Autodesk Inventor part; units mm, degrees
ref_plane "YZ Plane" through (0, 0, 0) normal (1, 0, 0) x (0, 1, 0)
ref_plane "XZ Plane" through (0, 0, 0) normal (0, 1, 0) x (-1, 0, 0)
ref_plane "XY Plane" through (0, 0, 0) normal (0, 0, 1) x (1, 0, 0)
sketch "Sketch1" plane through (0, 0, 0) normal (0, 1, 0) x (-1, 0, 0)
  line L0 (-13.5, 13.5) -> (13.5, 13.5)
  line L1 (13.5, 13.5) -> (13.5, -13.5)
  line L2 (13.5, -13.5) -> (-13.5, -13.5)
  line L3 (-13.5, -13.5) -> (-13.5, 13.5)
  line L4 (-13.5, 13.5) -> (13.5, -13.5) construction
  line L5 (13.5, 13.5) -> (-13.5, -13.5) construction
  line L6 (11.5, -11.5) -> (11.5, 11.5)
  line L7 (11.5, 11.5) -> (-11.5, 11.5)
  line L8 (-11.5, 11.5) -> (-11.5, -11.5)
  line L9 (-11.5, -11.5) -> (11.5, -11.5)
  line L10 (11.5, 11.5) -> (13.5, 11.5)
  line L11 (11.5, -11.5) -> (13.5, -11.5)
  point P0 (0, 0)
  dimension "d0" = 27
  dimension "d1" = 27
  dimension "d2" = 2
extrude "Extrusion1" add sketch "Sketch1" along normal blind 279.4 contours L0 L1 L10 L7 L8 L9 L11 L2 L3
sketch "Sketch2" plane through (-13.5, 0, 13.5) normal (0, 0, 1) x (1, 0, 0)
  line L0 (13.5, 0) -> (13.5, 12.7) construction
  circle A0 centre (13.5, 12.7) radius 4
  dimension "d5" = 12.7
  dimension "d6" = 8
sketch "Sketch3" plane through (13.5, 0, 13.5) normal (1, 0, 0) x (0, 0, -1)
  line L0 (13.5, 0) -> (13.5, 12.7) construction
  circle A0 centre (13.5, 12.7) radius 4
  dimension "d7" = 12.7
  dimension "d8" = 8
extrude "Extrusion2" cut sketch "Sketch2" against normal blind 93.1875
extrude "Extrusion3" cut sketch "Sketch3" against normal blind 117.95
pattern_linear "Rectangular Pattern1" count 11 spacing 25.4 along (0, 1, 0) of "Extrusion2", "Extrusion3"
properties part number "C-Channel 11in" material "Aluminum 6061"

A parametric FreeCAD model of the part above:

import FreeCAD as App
import Part
import Sketcher
from FreeCAD import Vector
Q = App.Units.Quantity


def add_polygon(sketch, points):
    """Adds a closed chain of lines whose ends are joined by coincident constraints."""
    first, n = sketch.GeometryCount, len(points)
    for a, b in zip(points, points[1:] + points[:1]):
        sketch.addGeometry(Part.LineSegment(App.Vector(*a, 0), App.Vector(*b, 0)), False)
    for i in range(n):
        sketch.addConstraint(Sketcher.Constraint("Coincident", first + i, 2, first + (i + 1) % n, 1))

doc = App.newDocument("Part")
body = doc.addObject("PartDesign::Body", "Body")

# Sketch on XZ plane
sketch1 = body.newObject("Sketcher::SketchObject", "Sketch")
sketch1.AttachmentSupport = (doc.getObject("XZ_Plane"), [""])
sketch1.MapMode = "FlatFace"
add_polygon(sketch1, [(-13.5, 13.5), (13.5, 13.5), (13.5, -13.5), (-13.5, -13.5), (-13.5, -11.5), (11.5, -11.5), (11.5, 11.5), (-13.5, 11.5)])  # lines 0-7
sketch1.addConstraint(Sketcher.Constraint("Horizontal", 0))
sketch1.addConstraint(Sketcher.Constraint("Vertical", 1))
sketch1.addConstraint(Sketcher.Constraint("Horizontal", 2))
sketch1.addConstraint(Sketcher.Constraint("Vertical", 3))
sketch1.addConstraint(Sketcher.Constraint("Horizontal", 4))
sketch1.addConstraint(Sketcher.Constraint("Vertical", 5))
sketch1.addConstraint(Sketcher.Constraint("Horizontal", 6))
sketch1.addConstraint(Sketcher.Constraint("Vertical", 7))
sketch1.addConstraint(Sketcher.Constraint("Symmetric", 0, 2, 2, 2, -1, 1))
sketch1.addConstraint(Sketcher.Constraint("Symmetric", 3, 2, 6, 2, -1))
sketch1.addConstraint(Sketcher.Constraint("Equal", 2, 1))
sketch1.addConstraint(Sketcher.Constraint("DistanceX", 0, 1, 0, 2, Q("27 mm")))
sketch1.addConstraint(Sketcher.Constraint("DistanceY", 3, 1, 3, 2, Q("2 mm")))
sketch1.addConstraint(Sketcher.Constraint("DistanceX", 4, 2, 1, 2, Q("2 mm")))
pad1 = body.newObject("PartDesign::Pad", "Pad")
pad1.Profile = sketch1
pad1.Length = 279.4
pad1.Reversed = True

# Sketch on XY plane
sketch2 = body.newObject("Sketcher::SketchObject", "Sketch001")
sketch2.AttachmentSupport = (doc.getObject("XY_Plane"), [""])
sketch2.MapMode = "FlatFace"
sketch2.AttachmentOffset = App.Placement(Vector(0, 0, 13.5), App.Rotation())
sketch2.addGeometry(Part.Circle(Vector(0, 12.7, 0), Vector(0, 0, 1), 4), False)
sketch2.addConstraint(Sketcher.Constraint("PointOnObject", 0, 3, -2))
sketch2.addConstraint(Sketcher.Constraint("Diameter", 0, Q("8 mm")))
sketch2.addConstraint(Sketcher.Constraint("DistanceY", -1, 1, 0, 3, Q("12.7 mm")))
pocket1 = body.newObject("PartDesign::Pocket", "Pocket")
pocket1.Profile = sketch2
pocket1.Length = 93.1875

# Sketch on YZ plane
sketch3 = body.newObject("Sketcher::SketchObject", "Sketch002")
sketch3.AttachmentSupport = (doc.getObject("YZ_Plane"), [""])
sketch3.MapMode = "FlatFace"
sketch3.AttachmentOffset = App.Placement(Vector(0, 0, 13.5), App.Rotation())
sketch3.addGeometry(Part.Circle(Vector(12.7, 0, 0), Vector(0, 0, 1), 4), False)
sketch3.addConstraint(Sketcher.Constraint("PointOnObject", 0, 3, -1))
sketch3.addConstraint(Sketcher.Constraint("Diameter", 0, Q("8 mm")))
sketch3.addConstraint(Sketcher.Constraint("DistanceX", -1, 1, 0, 3, Q("12.7 mm")))
pocket2 = body.newObject("PartDesign::Pocket", "Pocket001")
pocket2.Profile = sketch3
pocket2.Length = 117.95
doc.recompute()

linearpattern = body.newObject("PartDesign::LinearPattern", "LinearPattern")
linearpattern.Originals = [pocket1, pocket2]
linearpattern.Direction = (doc.getObject("Y_Axis"), [""])
linearpattern.Mode = "offset"
linearpattern.Offset = 25.4
linearpattern.Occurrences = 11
body.Tip = linearpattern

doc.recompute()
